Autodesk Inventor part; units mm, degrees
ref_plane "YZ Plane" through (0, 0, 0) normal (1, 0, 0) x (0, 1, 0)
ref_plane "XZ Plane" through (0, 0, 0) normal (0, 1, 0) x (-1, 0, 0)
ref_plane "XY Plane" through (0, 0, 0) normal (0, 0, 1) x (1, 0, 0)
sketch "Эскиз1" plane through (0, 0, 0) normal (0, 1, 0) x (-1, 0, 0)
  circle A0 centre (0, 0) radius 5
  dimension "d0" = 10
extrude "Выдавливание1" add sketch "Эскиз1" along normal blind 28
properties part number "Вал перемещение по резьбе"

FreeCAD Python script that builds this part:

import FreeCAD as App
import Part
import Sketcher

V = App.Vector
Q = App.Units.Quantity

doc = App.newDocument("Part")
body = doc.addObject("PartDesign::Body", "Body")

# Sketch on XZ plane
sketch1 = body.newObject("Sketcher::SketchObject", "Sketch")
sketch1.AttachmentSupport = (doc.getObject("XZ_Plane"), [""])
sketch1.MapMode = "FlatFace"
sketch1.addGeometry(Part.Circle(V(0, 0, 0), V(0, 0, 1), 5), False)
sketch1.addConstraint(Sketcher.Constraint("Coincident", 0, 3, -1, 1))
sketch1.addConstraint(Sketcher.Constraint("Diameter", 0, Q("10 mm")))
pad1 = body.newObject("PartDesign::Pad", "Pad")
pad1.Profile = sketch1
pad1.Length = 28
pad1.Reversed = True

doc.recompute()
